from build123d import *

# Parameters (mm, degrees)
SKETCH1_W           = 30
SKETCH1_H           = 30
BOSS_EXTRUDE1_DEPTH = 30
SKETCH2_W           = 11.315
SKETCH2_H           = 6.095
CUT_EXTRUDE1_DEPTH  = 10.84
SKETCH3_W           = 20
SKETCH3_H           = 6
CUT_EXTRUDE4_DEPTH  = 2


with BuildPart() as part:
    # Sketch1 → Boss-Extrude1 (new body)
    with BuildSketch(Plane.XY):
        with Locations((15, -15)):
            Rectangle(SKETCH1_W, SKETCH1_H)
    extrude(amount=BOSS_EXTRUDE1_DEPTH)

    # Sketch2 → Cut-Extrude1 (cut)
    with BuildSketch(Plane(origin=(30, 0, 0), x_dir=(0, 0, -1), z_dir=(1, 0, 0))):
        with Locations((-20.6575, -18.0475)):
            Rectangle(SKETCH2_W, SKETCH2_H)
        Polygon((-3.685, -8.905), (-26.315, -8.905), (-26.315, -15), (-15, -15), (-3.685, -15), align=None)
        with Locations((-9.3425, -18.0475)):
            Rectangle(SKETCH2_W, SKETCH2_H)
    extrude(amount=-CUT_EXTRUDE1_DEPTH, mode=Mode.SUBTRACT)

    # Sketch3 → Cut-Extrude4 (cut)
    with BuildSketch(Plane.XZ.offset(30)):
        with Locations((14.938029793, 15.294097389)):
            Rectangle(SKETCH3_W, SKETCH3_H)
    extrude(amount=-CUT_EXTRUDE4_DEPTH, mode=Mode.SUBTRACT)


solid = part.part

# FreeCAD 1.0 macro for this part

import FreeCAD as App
import Part
import Sketcher

V = App.Vector

doc = App.newDocument("Part")
body = doc.addObject("PartDesign::Body", "Body")

# Sketch on XY plane
sketch1 = body.newObject("Sketcher::SketchObject", "Sketch")
sketch1.AttachmentSupport = (doc.getObject("XY_Plane"), [""])
sketch1.MapMode = "FlatFace"
sketch1.addGeometry([
    Part.LineSegment(V(0, 0, 0), V(0, -30, 0)),
    Part.LineSegment(V(0, -30, 0), V(30, -30, 0)),
    Part.LineSegment(V(30, -30, 0), V(30, 0, 0)),
    Part.LineSegment(V(30, 0, 0), V(0, 0, 0)),
], False)
sketch1.addConstraint([
    Sketcher.Constraint("Coincident", 0, 2, 1, 1),
    Sketcher.Constraint("Coincident", 1, 2, 2, 1),
    Sketcher.Constraint("Coincident", 2, 2, 3, 1),
    Sketcher.Constraint("Coincident", 3, 2, 0, 1),
    Sketcher.Constraint("Vertical", 0),
    Sketcher.Constraint("Horizontal", 1),
    Sketcher.Constraint("Vertical", 2),
    Sketcher.Constraint("Horizontal", 3),
    Sketcher.Constraint("Coincident", 3, 2, -1, 1),
    Sketcher.Constraint("Equal", 3, 0),
    Sketcher.Constraint("DistanceX", 1, 1, 1, 2, 30.0),
])
pad1 = body.newObject("PartDesign::Pad", "Pad")
pad1.Profile = sketch1
pad1.Length = 30

# Sketch on YZ plane
sketch2 = body.newObject("Sketcher::SketchObject", "Sketch001")
sketch2.AttachmentSupport = (doc.getObject("YZ_Plane"), [""])
sketch2.MapMode = "FlatFace"
sketch2.AttachmentOffset = App.Placement(V(0, 0, 30), App.Rotation())
sketch2.addGeometry([
    Part.LineSegment(V(-21.095, 26.315, 0), V(-21.095, 3.685, 0)),
    Part.LineSegment(V(-21.095, 3.685, 0), V(-8.905, 3.685, 0)),
    Part.LineSegment(V(-8.905, 3.685, 0), V(-8.905, 26.315, 0)),
    Part.LineSegment(V(-8.905, 26.315, 0), V(-21.095, 26.315, 0)),
], False)
sketch2.addConstraint([
    Sketcher.Constraint("Coincident", 0, 2, 1, 1),
    Sketcher.Constraint("Coincident", 1, 2, 2, 1),
    Sketcher.Constraint("Coincident", 2, 2, 3, 1),
    Sketcher.Constraint("Coincident", 3, 2, 0, 1),
    Sketcher.Constraint("Vertical", 0),
    Sketcher.Constraint("Horizontal", 1),
    Sketcher.Constraint("Vertical", 2),
    Sketcher.Constraint("Horizontal", 3),
    Sketcher.Constraint("DistanceX", 1, 1, 1, 2, 12.19),
    Sketcher.Constraint("DistanceY", 0, 2, 0, 1, 22.63),
    Sketcher.Constraint("DistanceX", 0, 2, -1, 1, 21.095),
    Sketcher.Constraint("DistanceY", -1, 1, 0, 2, 3.685),
])
pocket1 = body.newObject("PartDesign::Pocket", "Pocket")
pocket1.Profile = sketch2
pocket1.Length = 10.84

# Sketch on XZ plane
sketch3 = body.newObject("Sketcher::SketchObject", "Sketch002")
sketch3.AttachmentSupport = (doc.getObject("XZ_Plane"), [""])
sketch3.MapMode = "FlatFace"
sketch3.AttachmentOffset = App.Placement(V(0, 0, 30), App.Rotation())
sketch3.addGeometry([
    Part.LineSegment(V(4.93803, 18.294097, 0), V(4.93803, 12.294097, 0)),
    Part.LineSegment(V(4.93803, 12.294097, 0), V(24.93803, 12.294097, 0)),
    Part.LineSegment(V(24.93803, 12.294097, 0), V(24.93803, 18.294097, 0)),
    Part.LineSegment(V(24.93803, 18.294097, 0), V(4.93803, 18.294097, 0)),
], False)
sketch3.addConstraint([
    Sketcher.Constraint("Coincident", 0, 2, 1, 1),
    Sketcher.Constraint("Coincident", 1, 2, 2, 1),
    Sketcher.Constraint("Coincident", 2, 2, 3, 1),
    Sketcher.Constraint("Coincident", 3, 2, 0, 1),
    Sketcher.Constraint("Vertical", 0),
    Sketcher.Constraint("Horizontal", 1),
    Sketcher.Constraint("Vertical", 2),
    Sketcher.Constraint("Horizontal", 3),
    Sketcher.Constraint("DistanceX", 1, 1, 1, 2, 20.0),
    Sketcher.Constraint("DistanceY", 0, 2, 0, 1, 6.0),
    Sketcher.Constraint("DistanceX", -1, 1, 0, 2, 4.93803),
    Sketcher.Constraint("DistanceY", -1, 1, 0, 2, 12.294097),
])
pocket2 = body.newObject("PartDesign::Pocket", "Pocket001")
pocket2.Profile = sketch3
pocket2.Length = 2

doc.recompute()
